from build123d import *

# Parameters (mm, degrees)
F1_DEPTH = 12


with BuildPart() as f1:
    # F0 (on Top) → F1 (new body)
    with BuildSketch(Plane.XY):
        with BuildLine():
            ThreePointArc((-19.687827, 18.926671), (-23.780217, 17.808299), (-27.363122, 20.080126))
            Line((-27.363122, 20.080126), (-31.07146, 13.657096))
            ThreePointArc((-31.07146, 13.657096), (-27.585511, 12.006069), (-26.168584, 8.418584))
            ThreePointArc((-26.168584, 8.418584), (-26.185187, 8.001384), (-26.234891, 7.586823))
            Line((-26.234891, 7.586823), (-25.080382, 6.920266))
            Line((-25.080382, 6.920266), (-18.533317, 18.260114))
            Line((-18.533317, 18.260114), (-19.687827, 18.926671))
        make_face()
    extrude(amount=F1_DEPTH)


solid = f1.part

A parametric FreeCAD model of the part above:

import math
import FreeCAD as App
import Part
import Sketcher

V = App.Vector
Q = App.Units.Quantity

doc = App.newDocument("Part")
body = doc.addObject("PartDesign::Body", "Body")

# Sketch on XY plane
sketch1 = doc.addObject("Sketcher::SketchObject", "Sketch")
body.addObject(sketch1)
sketch1.AttachmentSupport = (doc.XY_Plane, [""])
sketch1.MapMode = "FlatFace"
sketch1.addGeometry([
    Part.ArcOfCircle(Part.Circle(V(-23, 23, 0), V(0, 0, 1), 5.2), math.radians(-146), math.radians(-51)),  # 0
    Part.LineSegment(V(-27.4, 20.1, 0), V(-31.1, 13.7, 0)),  # 1
    Part.ArcOfCircle(Part.Circle(V(-31.4, 8.4, 0), V(0, 0, 1), 5.3), math.radians(0), math.radians(86)),  # 2
    Part.ArcOfCircle(Part.Circle(V(-31.4, 8.4, 0), V(0, 0, 1), 5.2), math.radians(-9.12), math.radians(0)),  # 3
    Part.LineSegment(V(-26.2, 7.6, 0), V(-25.1, 6.9, 0)),  # 4
    Part.LineSegment(V(-25.1, 6.9, 0), V(-18.5, 18.3, 0)),  # 5
    Part.LineSegment(V(-18.5, 18.3, 0), V(-19.7, 18.9, 0)),  # 6
], False)
sketch1.addConstraint([
    Sketcher.Constraint("Coincident", 0, 1, 1, 1),
    Sketcher.Constraint("Coincident", 1, 2, 2, 2),
    Sketcher.Constraint("Tangent", 2, 1, 3, 2),
    Sketcher.Constraint("Coincident", 3, 1, 4, 1),
    Sketcher.Constraint("Coincident", 4, 2, 5, 1),
    Sketcher.Constraint("Coincident", 5, 2, 6, 1),
    Sketcher.Constraint("Coincident", 6, 2, 0, 2),
    Sketcher.Constraint("Equal", 0, 2),
    Sketcher.Constraint("Perpendicular", 1, 4),
    Sketcher.Constraint("Perpendicular", 4, 5),
    Sketcher.Constraint("Perpendicular", 5, 6),
    Sketcher.Constraint("Horizontal", 3, 3, 2, 1),
    Sketcher.Constraint("Equal", 4, 6),
    Sketcher.Constraint("Angle", 1, Q("-119.999999 deg")),
    Sketcher.Constraint("Radius", 0, 5.25),
    Sketcher.Constraint("DistanceX", 0, 3, -1, 1, 23.0),
    Sketcher.Constraint("DistanceY", -1, 1, 0, 3, 23.0),
    Sketcher.Constraint("Radius", 3, 5.249992),
    Sketcher.Constraint("Distance", 5, 13.094129),
    Sketcher.Constraint("DistanceX", 0, 1, -1, 1, 27.363122),
    Sketcher.Constraint("DistanceX", 1, 2, -1, 1, 31.07146),
    Sketcher.Constraint("DistanceX", 3, 1, -1, 1, 26.234891),
    Sketcher.Constraint("DistanceX", 4, 2, -1, 1, 25.080382),
])
pad1 = doc.addObject("PartDesign::Pad", "Pad")
body.addObject(pad1)
pad1.Profile = sketch1
pad1.Length = 12

doc.recompute()
